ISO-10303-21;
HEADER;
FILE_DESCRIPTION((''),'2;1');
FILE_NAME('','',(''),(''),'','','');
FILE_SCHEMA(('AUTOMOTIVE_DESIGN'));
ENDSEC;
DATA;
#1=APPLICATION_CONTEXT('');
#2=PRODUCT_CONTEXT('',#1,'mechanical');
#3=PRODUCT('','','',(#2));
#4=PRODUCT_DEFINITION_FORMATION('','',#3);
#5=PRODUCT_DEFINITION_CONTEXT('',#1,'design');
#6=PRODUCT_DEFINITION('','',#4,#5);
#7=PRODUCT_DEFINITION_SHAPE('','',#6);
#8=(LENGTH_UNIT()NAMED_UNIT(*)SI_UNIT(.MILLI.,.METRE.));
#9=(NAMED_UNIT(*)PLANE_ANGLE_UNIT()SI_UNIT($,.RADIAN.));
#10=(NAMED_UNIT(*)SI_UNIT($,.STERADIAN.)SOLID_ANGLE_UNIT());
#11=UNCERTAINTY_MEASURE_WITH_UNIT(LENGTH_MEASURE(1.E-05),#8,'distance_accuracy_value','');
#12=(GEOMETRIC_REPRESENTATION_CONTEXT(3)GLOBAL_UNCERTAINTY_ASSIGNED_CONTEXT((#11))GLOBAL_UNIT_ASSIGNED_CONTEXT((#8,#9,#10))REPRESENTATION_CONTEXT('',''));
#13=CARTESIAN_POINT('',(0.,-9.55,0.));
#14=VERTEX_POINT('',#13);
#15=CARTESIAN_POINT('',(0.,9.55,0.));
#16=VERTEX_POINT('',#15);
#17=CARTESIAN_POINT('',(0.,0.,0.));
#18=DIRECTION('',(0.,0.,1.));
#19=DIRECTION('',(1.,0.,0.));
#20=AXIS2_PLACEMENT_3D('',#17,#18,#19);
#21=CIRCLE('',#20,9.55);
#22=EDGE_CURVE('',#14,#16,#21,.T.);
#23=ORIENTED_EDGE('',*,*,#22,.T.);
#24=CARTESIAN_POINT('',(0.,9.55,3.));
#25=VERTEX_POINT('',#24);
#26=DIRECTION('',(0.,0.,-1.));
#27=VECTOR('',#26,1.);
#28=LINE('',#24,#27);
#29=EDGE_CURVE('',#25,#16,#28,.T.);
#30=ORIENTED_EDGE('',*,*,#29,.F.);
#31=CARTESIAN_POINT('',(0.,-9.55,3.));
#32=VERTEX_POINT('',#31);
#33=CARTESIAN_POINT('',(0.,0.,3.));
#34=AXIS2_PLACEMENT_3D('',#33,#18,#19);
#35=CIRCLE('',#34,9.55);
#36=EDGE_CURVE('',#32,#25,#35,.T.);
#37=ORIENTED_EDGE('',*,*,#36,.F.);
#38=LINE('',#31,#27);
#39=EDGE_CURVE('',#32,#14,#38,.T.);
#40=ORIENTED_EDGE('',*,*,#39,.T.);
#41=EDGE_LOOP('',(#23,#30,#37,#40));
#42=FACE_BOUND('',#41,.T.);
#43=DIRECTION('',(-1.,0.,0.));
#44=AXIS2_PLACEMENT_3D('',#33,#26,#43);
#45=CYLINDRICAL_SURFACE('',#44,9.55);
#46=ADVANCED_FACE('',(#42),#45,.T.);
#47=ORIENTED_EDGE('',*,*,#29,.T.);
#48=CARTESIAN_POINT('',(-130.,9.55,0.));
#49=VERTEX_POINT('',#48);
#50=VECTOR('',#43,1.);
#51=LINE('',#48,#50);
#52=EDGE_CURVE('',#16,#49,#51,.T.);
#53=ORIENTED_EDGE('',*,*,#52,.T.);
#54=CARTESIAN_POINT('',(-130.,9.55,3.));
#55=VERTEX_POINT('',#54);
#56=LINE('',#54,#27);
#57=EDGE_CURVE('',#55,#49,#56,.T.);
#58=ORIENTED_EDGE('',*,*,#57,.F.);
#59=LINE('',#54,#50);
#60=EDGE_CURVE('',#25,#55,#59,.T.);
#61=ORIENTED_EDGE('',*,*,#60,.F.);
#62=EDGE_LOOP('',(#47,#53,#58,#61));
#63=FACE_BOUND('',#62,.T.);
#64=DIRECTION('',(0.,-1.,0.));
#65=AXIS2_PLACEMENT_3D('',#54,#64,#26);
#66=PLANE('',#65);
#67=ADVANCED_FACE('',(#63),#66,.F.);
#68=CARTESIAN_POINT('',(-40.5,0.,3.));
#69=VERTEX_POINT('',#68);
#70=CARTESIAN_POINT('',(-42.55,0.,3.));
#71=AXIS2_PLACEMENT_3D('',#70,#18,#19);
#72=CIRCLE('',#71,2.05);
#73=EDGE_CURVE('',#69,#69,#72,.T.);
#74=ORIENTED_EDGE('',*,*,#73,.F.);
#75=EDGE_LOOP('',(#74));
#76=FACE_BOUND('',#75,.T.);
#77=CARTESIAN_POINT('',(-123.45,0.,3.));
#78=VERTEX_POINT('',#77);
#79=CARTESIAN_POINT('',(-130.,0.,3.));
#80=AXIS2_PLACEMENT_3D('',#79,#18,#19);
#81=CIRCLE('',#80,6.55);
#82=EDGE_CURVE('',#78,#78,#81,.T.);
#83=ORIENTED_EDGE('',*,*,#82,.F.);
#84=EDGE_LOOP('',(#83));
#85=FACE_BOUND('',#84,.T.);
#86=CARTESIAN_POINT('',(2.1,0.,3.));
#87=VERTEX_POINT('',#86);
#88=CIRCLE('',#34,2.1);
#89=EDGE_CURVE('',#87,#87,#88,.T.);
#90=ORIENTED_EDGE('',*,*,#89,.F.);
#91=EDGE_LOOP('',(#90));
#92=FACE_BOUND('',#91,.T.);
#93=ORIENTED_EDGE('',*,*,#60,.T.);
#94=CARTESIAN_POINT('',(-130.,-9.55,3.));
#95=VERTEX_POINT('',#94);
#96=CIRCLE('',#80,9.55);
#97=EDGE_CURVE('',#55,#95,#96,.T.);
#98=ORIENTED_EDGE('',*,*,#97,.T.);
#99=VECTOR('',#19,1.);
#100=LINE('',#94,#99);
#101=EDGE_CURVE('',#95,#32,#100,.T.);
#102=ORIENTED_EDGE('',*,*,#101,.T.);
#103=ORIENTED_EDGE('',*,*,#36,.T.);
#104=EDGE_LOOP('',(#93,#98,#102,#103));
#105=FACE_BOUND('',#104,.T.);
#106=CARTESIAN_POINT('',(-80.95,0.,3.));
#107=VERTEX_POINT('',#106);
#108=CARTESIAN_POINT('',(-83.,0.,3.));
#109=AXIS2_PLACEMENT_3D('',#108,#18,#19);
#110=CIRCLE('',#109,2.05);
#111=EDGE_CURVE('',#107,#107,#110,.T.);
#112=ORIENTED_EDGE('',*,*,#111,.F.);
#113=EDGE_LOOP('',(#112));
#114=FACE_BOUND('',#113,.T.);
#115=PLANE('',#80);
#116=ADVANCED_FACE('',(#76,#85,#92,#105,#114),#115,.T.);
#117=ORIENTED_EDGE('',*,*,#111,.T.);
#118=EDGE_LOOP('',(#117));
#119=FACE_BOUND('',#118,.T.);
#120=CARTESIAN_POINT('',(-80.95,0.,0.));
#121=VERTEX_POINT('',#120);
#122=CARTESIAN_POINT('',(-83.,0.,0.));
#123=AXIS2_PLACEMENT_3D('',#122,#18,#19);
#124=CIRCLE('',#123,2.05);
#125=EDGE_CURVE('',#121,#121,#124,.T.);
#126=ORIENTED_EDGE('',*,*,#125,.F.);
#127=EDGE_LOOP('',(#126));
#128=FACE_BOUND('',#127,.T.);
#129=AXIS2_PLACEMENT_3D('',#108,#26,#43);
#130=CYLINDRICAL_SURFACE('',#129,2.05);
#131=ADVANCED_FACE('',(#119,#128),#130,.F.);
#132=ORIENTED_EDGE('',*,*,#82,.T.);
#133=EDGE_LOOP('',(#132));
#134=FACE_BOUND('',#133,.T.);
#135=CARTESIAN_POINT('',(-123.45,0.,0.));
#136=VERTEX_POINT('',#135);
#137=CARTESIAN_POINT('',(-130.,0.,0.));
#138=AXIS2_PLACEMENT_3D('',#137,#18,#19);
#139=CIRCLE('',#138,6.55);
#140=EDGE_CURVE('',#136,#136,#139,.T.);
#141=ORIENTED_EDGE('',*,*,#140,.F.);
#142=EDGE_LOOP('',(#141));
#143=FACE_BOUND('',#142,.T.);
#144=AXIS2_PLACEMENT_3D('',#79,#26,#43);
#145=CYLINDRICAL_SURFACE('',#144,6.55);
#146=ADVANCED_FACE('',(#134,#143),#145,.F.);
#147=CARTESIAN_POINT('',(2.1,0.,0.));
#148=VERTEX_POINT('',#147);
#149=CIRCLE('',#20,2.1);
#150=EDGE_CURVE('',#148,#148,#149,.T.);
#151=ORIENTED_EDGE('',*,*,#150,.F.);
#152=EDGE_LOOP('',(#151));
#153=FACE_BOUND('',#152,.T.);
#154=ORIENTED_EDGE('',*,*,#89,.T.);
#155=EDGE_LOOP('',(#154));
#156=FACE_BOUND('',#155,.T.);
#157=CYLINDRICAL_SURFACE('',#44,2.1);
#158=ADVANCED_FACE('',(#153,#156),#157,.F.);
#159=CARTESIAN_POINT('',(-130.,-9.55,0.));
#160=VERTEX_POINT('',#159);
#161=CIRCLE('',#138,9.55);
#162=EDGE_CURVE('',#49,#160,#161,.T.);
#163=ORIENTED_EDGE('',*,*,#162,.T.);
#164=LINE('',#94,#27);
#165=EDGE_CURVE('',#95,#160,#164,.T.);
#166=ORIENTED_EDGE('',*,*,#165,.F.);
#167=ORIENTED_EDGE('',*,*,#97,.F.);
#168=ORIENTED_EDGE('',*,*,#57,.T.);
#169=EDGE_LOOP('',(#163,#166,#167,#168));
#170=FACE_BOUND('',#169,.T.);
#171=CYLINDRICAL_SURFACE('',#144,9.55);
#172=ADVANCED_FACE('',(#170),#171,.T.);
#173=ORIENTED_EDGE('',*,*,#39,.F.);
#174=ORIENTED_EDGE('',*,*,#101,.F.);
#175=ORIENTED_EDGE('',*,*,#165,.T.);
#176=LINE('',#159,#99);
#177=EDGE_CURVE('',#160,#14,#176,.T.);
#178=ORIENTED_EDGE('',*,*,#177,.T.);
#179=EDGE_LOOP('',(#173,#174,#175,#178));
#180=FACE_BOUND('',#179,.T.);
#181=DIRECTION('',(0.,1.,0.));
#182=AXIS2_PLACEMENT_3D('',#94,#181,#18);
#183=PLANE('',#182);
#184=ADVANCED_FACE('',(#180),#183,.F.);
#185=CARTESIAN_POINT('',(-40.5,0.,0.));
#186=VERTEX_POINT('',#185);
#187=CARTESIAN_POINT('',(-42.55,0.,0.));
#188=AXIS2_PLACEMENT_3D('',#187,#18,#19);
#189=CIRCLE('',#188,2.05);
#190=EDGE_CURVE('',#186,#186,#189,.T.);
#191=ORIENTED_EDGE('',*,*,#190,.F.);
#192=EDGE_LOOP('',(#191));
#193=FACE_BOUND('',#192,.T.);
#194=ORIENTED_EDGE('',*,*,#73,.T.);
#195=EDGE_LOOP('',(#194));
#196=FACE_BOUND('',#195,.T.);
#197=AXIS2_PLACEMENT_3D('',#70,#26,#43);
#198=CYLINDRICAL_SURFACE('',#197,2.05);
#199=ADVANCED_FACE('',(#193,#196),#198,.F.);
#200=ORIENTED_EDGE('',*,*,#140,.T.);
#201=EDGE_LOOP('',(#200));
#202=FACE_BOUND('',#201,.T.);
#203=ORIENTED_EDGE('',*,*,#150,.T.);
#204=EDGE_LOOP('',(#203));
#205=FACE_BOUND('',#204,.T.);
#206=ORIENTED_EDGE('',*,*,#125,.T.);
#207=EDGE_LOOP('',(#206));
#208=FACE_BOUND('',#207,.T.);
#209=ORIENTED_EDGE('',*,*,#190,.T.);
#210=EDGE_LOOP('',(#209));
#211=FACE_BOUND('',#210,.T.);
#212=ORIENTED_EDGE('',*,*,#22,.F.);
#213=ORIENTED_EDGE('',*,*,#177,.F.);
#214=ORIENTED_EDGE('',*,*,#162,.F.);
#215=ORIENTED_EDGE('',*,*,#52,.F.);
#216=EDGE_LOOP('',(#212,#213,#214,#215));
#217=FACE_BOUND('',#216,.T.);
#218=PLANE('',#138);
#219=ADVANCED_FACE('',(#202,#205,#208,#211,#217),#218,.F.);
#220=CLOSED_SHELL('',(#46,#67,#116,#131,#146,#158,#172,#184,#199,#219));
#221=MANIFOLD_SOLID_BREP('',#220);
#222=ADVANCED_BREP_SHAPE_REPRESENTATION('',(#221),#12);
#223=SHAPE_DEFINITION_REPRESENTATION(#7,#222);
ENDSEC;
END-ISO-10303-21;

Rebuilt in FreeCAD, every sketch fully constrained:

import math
import FreeCAD as App
import Part
import Sketcher

V = App.Vector
Q = App.Units.Quantity

doc = App.newDocument("Part")
params = doc.addObject("Spreadsheet::Sheet", "Params")
for row, (alias, value) in enumerate([
    ("sketch1_diameter", "4.2 mm"),
    ("sketch1_diameter2", "4.1 mm"),
    ("sketch1_diameter3", "13.1 mm"),
    ("sketch1_width", "130 mm"),
    ("sketch1_radius", "9.55 mm"),
    ("pad1_length", "3 mm"),
], start=1):
    params.set(f"A{row}", alias)
    params.set(f"B{row}", "=" + value)
    params.setAlias(f"B{row}", alias)

body = doc.addObject("PartDesign::Body", "Body")

sketch1 = body.newObject("Sketcher::SketchObject", "Sketch")
sketch1.AttachmentSupport = (doc.getObject("XY_Plane"), [""])
sketch1.MapMode = "FlatFace"
sketch1.addGeometry(Part.LineSegment(V(0, 9.6, 0), V(-130, 9.6, 0)), False)
sketch1.addGeometry(Part.ArcOfCircle(Part.Circle(V(-130, 0, 0), V(0, 0, 1), 9.6), math.radians(90), math.radians(270)), False)
sketch1.addGeometry(Part.LineSegment(V(-130, -9.6, 0), V(0, -9.6, 0)), False)
sketch1.addGeometry(Part.ArcOfCircle(Part.Circle(V(0, 0, 0), V(0, 0, 1), 9.6), math.radians(-90), math.radians(90)), False)
sketch1.addGeometry(Part.Circle(V(0, 0, 0), V(0, 0, 1), 2.1), False)
sketch1.addGeometry(Part.Circle(V(-42.5, 0, 0), V(0, 0, 1), 2), False)
sketch1.addGeometry(Part.Circle(V(-83, 0, 0), V(0, 0, 1), 2), False)
sketch1.addGeometry(Part.Circle(V(-130, 0, 0), V(0, 0, 1), 6.5), False)
sketch1.addConstraint(Sketcher.Constraint("Tangent", 0, 2, 1, 1))
sketch1.addConstraint(Sketcher.Constraint("Tangent", 1, 2, 2, 1))
sketch1.addConstraint(Sketcher.Constraint("Tangent", 2, 2, 3, 1))
sketch1.addConstraint(Sketcher.Constraint("Tangent", 3, 2, 0, 1))
sketch1.addConstraint(Sketcher.Constraint("Horizontal", 0))
sketch1.addConstraint(Sketcher.Constraint("Horizontal", 2))
sketch1.addConstraint(Sketcher.Constraint("Coincident", 3, 3, -1, 1))
sketch1.addConstraint(Sketcher.Constraint("Coincident", 4, 3, -1, 1))
sketch1.addConstraint(Sketcher.Constraint("Coincident", 7, 3, 1, 3))
sketch1.addConstraint(Sketcher.Constraint("Equal", 5, 6))
sketch1.addConstraint(Sketcher.Constraint("PointOnObject", 5, 3, -1))
sketch1.addConstraint(Sketcher.Constraint("PointOnObject", 6, 3, -1))
sketch1.addConstraint(Sketcher.Constraint("Diameter", 4, Q("4.2 mm")))
sketch1.addConstraint(Sketcher.Constraint("Diameter", 5, Q("4.1 mm")))
sketch1.addConstraint(Sketcher.Constraint("Diameter", 7, Q("13.1 mm")))
sketch1.addConstraint(Sketcher.Constraint("DistanceX", 0, 2, 0, 1, Q("130 mm")))
sketch1.addConstraint(Sketcher.Constraint("Radius", 1, Q("9.55 mm")))
sketch1.addConstraint(Sketcher.Constraint("DistanceX", 6, 3, -1, 1, Q("83 mm")))
sketch1.addConstraint(Sketcher.Constraint("DistanceX", 5, 3, -1, 1, Q("42.55 mm")))
sketch1.setExpression("Constraints[12]", "Params.sketch1_diameter")
sketch1.setExpression("Constraints[13]", "Params.sketch1_diameter2")
sketch1.setExpression("Constraints[14]", "Params.sketch1_diameter3")
sketch1.setExpression("Constraints[15]", "Params.sketch1_width")
sketch1.setExpression("Constraints[16]", "Params.sketch1_radius")
pad1 = body.newObject("PartDesign::Pad", "Pad")
pad1.Profile = sketch1
pad1.setExpression("Length", "Params.pad1_length")

doc.recompute()
